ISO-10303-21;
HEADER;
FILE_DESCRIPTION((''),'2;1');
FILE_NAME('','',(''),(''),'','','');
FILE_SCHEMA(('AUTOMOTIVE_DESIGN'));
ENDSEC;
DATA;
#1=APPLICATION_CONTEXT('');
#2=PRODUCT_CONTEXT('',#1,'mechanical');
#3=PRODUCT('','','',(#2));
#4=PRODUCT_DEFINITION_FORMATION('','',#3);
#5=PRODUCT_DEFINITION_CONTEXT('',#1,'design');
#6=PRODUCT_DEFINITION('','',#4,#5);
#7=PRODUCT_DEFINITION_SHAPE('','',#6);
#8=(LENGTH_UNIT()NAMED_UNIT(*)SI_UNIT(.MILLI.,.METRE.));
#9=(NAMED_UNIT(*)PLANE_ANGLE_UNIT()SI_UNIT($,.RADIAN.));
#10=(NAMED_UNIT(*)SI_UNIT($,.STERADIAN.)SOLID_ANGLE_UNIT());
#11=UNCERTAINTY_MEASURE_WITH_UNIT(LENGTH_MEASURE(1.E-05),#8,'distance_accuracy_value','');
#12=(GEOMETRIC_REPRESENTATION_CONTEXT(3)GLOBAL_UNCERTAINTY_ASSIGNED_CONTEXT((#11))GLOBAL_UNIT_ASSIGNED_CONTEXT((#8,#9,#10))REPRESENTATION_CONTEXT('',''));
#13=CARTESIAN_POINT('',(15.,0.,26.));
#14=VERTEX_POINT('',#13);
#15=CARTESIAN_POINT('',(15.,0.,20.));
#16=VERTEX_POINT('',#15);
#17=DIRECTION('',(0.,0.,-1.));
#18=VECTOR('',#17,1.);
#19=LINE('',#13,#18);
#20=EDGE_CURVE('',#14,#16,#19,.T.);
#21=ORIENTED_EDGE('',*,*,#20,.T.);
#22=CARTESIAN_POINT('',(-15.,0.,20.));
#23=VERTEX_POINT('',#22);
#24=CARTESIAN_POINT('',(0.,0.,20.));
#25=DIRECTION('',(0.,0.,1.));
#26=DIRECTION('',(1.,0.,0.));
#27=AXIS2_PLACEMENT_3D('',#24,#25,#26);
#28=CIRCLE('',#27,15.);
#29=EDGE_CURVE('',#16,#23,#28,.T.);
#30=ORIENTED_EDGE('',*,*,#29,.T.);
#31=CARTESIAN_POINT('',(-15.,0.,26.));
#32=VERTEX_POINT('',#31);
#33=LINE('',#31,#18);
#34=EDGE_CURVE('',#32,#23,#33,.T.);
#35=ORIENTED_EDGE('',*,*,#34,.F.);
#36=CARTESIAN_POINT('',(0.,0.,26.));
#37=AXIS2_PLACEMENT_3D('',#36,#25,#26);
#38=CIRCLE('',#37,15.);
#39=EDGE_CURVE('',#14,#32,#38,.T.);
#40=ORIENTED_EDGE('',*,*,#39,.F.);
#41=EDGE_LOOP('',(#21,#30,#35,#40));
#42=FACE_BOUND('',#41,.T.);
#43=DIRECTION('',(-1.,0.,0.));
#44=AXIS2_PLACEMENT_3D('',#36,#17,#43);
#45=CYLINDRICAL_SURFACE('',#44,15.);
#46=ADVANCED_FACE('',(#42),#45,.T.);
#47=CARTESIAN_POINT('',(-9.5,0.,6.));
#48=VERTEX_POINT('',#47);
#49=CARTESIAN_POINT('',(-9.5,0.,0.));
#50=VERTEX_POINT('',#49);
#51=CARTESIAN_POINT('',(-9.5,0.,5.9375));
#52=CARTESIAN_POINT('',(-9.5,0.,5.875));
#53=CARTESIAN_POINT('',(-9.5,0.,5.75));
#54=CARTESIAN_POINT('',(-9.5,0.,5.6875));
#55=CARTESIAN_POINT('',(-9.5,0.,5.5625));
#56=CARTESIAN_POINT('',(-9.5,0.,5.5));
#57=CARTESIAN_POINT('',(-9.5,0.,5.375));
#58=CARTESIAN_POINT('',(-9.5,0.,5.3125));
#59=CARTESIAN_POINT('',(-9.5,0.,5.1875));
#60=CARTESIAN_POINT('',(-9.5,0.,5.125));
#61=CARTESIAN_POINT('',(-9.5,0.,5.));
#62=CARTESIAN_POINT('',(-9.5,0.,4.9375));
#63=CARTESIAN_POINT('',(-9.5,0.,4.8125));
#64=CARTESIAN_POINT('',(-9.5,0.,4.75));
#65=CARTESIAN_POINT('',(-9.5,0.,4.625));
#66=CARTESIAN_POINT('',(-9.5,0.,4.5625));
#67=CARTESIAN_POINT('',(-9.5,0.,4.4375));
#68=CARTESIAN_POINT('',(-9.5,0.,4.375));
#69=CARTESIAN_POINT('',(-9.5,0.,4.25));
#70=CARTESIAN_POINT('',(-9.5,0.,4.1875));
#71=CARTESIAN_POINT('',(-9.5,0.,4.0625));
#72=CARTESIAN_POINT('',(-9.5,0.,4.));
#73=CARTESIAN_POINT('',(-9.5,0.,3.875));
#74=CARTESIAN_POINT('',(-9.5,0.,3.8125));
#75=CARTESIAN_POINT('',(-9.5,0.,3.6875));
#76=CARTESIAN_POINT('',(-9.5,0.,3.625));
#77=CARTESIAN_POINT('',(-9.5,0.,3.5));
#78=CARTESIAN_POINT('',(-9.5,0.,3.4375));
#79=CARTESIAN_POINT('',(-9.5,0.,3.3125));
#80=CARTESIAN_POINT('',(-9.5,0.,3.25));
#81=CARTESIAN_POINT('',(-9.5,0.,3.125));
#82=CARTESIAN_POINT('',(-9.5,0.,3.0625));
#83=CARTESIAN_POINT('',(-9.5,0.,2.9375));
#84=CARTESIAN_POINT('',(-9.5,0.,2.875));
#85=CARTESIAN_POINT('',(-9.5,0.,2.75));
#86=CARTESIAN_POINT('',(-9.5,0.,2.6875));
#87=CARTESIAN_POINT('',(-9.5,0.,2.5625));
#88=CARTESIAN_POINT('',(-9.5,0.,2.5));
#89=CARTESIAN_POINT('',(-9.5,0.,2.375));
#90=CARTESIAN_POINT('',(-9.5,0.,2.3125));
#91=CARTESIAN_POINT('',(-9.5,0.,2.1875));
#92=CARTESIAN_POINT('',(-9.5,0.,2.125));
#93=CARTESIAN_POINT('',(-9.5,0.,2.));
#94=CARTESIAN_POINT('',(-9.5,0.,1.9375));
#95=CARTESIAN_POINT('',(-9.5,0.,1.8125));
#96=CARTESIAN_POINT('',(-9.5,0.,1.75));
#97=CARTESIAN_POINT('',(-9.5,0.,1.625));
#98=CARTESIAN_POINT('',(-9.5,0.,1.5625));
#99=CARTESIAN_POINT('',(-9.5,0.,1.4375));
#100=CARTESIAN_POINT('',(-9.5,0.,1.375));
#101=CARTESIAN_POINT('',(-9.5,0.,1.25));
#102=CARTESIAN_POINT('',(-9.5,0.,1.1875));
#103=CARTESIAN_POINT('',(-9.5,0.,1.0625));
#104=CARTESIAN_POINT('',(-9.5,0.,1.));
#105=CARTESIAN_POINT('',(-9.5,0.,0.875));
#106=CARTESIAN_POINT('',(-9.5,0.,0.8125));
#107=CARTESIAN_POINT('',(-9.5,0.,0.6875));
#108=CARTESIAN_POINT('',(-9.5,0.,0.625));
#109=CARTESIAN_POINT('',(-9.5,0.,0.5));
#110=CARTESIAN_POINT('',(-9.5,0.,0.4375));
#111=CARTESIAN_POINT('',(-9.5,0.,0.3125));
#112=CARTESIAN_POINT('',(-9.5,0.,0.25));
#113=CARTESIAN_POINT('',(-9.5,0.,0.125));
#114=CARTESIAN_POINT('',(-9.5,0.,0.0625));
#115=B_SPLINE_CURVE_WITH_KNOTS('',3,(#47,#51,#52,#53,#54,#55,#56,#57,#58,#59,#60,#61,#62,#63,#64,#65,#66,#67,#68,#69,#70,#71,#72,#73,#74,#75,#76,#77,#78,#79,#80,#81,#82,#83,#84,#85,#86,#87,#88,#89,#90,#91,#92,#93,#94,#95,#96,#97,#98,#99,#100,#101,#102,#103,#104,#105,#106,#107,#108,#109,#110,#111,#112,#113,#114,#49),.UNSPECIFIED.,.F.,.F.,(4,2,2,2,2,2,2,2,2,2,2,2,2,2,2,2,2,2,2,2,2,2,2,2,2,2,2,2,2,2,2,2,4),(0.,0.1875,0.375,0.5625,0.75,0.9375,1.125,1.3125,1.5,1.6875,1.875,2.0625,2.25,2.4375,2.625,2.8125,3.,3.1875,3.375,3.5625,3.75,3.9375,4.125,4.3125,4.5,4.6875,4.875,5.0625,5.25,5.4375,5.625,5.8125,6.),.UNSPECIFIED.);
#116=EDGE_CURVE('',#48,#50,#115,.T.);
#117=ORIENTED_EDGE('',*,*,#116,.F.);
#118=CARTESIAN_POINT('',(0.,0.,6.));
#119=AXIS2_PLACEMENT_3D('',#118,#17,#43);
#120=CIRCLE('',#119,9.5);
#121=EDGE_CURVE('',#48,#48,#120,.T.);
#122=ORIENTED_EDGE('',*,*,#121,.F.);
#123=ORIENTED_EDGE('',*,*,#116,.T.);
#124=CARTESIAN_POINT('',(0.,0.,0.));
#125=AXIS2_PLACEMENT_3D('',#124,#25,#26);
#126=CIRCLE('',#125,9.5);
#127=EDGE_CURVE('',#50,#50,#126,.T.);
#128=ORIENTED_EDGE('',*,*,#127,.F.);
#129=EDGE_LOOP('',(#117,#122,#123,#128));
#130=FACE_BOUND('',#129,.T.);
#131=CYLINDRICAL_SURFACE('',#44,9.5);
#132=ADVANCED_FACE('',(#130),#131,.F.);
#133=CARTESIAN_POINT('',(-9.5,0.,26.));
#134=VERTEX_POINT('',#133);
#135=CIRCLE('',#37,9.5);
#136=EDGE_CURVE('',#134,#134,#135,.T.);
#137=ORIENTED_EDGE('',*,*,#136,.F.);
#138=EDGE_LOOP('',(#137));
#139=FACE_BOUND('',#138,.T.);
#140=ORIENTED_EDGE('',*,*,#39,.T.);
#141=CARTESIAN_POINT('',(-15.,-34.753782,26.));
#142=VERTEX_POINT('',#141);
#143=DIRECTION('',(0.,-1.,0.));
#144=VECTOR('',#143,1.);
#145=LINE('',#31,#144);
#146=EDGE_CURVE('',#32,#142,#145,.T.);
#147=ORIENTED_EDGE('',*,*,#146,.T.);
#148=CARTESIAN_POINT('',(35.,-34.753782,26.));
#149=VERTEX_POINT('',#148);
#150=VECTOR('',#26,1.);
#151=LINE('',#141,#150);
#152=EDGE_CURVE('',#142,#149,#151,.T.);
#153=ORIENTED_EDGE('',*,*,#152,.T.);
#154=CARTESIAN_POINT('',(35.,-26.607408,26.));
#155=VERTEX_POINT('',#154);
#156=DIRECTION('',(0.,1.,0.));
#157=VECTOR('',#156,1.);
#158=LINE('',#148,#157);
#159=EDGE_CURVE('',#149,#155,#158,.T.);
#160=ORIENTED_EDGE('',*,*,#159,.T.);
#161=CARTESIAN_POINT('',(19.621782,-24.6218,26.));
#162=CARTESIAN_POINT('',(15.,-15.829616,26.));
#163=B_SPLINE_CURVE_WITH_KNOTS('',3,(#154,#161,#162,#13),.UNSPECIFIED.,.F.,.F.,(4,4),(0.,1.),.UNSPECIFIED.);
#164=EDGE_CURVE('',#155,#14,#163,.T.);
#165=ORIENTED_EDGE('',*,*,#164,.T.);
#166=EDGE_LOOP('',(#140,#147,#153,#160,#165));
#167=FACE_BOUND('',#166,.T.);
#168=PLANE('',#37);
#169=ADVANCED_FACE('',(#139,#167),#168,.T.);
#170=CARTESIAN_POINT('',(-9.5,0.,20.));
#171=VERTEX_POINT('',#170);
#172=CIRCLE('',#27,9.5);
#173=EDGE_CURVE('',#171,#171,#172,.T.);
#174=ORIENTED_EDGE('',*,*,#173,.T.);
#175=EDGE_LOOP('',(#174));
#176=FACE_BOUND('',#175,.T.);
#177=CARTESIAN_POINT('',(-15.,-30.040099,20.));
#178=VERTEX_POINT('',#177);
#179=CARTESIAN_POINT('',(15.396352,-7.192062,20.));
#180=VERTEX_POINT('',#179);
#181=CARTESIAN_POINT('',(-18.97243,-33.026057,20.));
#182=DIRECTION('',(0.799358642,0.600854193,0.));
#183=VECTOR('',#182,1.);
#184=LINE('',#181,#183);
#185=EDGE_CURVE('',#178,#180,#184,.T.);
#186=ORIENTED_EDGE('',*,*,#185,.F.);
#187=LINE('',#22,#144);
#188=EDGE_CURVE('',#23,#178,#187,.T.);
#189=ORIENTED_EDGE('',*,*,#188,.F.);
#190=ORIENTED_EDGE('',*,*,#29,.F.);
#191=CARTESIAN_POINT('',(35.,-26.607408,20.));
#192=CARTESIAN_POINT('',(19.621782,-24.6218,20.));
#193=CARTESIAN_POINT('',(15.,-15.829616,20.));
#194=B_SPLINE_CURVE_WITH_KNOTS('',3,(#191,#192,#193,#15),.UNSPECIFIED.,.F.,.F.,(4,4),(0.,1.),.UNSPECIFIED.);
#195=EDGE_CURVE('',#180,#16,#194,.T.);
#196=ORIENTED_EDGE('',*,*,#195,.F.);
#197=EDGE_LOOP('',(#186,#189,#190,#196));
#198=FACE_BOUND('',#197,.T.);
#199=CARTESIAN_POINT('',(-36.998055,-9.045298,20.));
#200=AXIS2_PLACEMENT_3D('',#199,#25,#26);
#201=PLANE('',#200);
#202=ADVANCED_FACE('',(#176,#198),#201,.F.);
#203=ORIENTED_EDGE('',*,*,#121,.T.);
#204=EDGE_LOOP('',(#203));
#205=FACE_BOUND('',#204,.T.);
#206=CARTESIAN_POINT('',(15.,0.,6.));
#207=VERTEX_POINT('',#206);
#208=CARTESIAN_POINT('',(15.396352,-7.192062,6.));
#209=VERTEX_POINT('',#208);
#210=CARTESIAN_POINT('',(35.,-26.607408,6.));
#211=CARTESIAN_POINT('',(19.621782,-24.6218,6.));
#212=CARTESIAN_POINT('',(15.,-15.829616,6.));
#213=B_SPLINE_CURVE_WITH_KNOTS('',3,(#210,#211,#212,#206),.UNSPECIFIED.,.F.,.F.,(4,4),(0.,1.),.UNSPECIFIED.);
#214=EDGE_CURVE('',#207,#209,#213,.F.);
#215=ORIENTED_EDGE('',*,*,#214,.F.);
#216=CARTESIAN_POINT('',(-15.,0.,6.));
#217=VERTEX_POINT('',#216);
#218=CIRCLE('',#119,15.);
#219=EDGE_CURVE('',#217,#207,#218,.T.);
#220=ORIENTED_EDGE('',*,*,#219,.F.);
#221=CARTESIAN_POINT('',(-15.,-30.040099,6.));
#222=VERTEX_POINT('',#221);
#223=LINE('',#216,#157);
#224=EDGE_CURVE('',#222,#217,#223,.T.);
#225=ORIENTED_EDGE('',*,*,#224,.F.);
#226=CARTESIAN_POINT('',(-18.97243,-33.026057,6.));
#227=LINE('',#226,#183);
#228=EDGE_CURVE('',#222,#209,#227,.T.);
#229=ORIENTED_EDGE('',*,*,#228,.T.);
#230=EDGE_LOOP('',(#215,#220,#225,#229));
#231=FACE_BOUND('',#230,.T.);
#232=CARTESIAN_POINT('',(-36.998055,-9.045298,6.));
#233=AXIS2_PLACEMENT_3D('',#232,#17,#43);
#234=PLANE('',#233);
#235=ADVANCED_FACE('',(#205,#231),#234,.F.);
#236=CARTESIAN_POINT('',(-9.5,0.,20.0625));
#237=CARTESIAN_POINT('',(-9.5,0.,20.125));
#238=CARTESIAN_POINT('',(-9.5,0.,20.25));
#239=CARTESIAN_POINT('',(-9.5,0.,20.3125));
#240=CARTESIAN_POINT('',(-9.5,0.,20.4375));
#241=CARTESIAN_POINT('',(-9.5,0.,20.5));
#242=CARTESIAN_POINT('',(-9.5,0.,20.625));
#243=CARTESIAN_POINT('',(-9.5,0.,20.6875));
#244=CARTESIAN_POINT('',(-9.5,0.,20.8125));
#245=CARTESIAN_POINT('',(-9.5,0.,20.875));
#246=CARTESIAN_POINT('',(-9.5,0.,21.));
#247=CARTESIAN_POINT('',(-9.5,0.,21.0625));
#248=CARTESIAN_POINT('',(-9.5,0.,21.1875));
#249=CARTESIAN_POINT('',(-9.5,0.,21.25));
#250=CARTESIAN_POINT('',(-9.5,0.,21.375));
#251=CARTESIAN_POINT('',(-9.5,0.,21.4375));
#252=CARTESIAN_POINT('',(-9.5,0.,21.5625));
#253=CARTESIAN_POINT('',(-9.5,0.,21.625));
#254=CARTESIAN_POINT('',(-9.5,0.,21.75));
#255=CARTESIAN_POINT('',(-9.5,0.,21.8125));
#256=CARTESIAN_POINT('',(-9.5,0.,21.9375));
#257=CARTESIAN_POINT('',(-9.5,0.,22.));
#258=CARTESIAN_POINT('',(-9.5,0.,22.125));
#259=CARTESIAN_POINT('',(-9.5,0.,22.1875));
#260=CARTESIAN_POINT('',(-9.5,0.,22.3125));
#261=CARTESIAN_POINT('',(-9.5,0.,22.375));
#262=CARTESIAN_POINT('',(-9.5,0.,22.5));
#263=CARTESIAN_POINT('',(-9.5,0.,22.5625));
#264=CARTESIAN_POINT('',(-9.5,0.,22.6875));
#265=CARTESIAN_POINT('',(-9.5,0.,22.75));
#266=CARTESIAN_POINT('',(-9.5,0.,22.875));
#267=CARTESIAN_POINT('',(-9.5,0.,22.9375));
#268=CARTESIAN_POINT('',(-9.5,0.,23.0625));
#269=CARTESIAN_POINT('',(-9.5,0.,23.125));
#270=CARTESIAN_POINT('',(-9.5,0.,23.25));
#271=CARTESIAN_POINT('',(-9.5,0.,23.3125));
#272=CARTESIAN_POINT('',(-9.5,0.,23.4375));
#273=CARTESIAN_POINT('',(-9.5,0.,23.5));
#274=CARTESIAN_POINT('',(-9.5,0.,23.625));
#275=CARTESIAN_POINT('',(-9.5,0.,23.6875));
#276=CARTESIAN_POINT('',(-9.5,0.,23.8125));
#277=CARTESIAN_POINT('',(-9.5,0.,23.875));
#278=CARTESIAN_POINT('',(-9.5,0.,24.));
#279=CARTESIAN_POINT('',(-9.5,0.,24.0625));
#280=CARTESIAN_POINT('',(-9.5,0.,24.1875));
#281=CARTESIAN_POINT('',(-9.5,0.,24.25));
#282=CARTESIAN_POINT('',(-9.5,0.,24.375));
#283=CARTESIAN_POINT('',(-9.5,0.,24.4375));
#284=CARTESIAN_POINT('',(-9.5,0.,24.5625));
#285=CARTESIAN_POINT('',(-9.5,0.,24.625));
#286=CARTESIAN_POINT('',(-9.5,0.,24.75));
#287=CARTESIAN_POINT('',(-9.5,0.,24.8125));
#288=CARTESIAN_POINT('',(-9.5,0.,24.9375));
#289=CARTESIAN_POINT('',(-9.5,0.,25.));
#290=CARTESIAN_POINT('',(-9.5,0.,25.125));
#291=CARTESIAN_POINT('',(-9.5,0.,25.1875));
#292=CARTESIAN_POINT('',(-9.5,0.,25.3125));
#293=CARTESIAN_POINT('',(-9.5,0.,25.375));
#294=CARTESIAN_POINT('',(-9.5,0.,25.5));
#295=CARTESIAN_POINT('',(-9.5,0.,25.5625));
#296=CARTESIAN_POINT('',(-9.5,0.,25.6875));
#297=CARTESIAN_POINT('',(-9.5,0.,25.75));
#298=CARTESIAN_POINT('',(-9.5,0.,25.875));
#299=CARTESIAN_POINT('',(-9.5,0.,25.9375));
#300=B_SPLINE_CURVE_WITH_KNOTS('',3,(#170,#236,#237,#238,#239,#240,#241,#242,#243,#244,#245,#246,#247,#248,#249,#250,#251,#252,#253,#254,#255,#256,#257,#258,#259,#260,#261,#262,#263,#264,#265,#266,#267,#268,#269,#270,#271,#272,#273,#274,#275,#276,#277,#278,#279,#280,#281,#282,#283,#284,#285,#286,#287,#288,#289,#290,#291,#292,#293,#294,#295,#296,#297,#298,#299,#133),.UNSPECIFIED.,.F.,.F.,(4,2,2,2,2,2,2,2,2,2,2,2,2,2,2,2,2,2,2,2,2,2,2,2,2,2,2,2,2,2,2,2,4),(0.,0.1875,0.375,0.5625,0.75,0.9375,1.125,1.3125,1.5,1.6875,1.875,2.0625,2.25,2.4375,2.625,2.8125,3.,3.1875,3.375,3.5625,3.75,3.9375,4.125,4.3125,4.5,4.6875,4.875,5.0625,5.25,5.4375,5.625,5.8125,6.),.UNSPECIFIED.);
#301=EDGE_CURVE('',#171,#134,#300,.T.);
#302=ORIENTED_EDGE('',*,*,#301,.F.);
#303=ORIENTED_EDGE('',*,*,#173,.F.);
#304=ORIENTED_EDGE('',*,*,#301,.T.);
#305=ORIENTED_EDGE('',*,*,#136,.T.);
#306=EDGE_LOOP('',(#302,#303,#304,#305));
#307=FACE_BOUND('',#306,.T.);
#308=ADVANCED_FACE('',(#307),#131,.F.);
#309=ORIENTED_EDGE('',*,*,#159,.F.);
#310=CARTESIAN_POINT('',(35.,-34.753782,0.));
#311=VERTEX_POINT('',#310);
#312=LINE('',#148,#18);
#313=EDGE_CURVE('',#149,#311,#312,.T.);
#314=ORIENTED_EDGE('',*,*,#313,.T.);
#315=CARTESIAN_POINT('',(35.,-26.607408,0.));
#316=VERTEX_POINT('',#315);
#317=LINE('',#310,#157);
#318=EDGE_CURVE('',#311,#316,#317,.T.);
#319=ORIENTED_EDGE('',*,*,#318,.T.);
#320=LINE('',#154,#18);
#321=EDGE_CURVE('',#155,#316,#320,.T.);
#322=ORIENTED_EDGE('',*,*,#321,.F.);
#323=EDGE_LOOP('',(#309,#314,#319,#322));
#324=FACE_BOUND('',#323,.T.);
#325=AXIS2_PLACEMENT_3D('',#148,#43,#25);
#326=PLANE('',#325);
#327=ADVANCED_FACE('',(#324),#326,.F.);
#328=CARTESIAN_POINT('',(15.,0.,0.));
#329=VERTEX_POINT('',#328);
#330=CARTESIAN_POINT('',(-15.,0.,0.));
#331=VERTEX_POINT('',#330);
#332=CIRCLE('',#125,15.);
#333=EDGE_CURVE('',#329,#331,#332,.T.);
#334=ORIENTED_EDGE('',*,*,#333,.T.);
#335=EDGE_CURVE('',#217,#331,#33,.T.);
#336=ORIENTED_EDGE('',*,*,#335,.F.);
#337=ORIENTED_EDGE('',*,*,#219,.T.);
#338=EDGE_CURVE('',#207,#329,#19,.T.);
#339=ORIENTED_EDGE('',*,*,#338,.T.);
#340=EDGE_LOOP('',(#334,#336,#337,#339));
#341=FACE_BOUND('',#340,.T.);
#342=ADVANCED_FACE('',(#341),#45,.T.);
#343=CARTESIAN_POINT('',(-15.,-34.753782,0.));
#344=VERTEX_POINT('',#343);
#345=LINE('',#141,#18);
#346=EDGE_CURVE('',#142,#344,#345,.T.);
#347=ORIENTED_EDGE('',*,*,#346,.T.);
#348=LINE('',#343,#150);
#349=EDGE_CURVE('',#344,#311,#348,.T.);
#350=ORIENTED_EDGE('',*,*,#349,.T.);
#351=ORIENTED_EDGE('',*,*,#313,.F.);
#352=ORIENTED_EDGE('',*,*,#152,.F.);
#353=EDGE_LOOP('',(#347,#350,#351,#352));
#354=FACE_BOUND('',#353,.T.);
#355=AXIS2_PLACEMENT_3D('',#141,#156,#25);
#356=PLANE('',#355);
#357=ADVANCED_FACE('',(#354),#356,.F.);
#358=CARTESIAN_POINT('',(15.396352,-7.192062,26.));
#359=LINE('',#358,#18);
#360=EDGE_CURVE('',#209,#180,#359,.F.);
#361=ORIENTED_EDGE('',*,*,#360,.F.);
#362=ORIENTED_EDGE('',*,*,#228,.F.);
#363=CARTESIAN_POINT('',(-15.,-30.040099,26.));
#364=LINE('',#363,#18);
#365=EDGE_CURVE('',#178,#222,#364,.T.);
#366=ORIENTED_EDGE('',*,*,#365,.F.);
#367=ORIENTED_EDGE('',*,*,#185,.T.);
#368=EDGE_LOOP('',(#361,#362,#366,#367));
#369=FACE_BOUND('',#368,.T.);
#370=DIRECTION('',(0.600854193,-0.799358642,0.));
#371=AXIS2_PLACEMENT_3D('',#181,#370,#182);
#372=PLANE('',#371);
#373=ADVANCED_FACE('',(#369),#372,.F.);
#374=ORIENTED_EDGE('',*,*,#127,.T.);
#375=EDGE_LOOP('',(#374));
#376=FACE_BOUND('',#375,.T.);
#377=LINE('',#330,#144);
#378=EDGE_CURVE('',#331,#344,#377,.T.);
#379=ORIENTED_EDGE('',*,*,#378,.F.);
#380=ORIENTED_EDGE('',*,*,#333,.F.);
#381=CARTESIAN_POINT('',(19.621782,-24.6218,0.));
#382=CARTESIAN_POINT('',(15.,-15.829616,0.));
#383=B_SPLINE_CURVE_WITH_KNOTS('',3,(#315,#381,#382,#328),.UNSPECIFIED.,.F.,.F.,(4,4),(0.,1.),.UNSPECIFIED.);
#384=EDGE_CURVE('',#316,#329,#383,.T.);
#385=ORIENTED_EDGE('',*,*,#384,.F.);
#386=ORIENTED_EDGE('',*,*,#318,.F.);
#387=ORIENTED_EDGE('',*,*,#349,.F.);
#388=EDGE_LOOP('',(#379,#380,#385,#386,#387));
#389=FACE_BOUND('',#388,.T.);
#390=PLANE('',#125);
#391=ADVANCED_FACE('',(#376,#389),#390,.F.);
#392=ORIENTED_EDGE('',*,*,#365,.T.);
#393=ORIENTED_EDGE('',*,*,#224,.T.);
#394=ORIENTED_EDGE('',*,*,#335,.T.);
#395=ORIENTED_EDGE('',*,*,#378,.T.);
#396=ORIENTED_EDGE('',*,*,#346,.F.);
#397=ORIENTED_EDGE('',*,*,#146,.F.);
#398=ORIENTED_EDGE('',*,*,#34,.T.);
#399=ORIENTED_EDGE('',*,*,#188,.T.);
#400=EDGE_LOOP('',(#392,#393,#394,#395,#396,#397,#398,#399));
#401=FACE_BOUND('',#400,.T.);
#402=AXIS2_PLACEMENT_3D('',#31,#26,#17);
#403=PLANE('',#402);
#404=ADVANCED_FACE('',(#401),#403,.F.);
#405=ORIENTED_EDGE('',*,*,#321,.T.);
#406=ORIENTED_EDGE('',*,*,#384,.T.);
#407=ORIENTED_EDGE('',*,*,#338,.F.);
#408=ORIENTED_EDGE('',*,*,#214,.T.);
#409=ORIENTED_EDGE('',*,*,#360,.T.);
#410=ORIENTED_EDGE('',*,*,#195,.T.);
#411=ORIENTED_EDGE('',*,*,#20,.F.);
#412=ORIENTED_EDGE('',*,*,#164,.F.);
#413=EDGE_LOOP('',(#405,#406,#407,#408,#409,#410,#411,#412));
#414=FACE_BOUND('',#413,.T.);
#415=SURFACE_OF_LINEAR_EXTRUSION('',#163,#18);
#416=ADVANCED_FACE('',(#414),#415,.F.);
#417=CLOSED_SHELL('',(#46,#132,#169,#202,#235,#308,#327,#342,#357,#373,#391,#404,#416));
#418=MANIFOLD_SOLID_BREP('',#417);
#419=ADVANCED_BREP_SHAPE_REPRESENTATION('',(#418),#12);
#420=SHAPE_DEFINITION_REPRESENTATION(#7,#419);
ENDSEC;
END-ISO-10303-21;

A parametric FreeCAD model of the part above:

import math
import FreeCAD as App
import Part
import Sketcher
from FreeCAD import Vector


def add_polygon(sketch, points):
    """Adds a closed chain of lines whose ends are joined by coincident constraints."""
    first, n = sketch.GeometryCount, len(points)
    for a, b in zip(points, points[1:] + points[:1]):
        sketch.addGeometry(Part.LineSegment(App.Vector(*a, 0), App.Vector(*b, 0)), False)
    for i in range(n):
        sketch.addConstraint(Sketcher.Constraint("Coincident", first + i, 2, first + (i + 1) % n, 1))

doc = App.newDocument("Part")
params = doc.addObject("Spreadsheet::Sheet", "Params")
for row, (alias, value) in enumerate([
    ("sketch1_diameter", "19 mm"),
    ("pad1_length", "26 mm"),
    ("sketch2_width", "14 mm"),
    ("sketch2_height", "30 mm"),
    ("pocket1_length", "57 mm"),
], start=1):
    params.set(f"A{row}", alias)
    params.set(f"B{row}", "=" + value)
    params.setAlias(f"B{row}", alias)

body = doc.addObject("PartDesign::Body", "Body")

sketch1 = body.newObject("Sketcher::SketchObject", "Sketch")
sketch1.AttachmentSupport = (doc.getObject("XY_Plane"), [""])
sketch1.MapMode = "FlatFace"
sketch1.addGeometry([
    Part.LineSegment(Vector(-15, 0, 0), Vector(-15, -34.753782, 0)),
    Part.LineSegment(Vector(-15, -34.753782, 0), Vector(35, -34.753782, 0)),
    Part.LineSegment(Vector(35, -34.753782, 0), Vector(35, -26.607408, 0)),
    Part.BSplineCurve([Vector(35, -26.607408, 0), Vector(19.621782, -24.6218, 0), Vector(15, -15.829616, 0), Vector(15, 0, 0)], [4, 4], [0, 1], False, 3, [1, 1, 1, 1], False),
    Part.ArcOfCircle(Part.Circle(Vector(0, 0, 0), Vector(0, 0, 1), 15), math.radians(0), math.radians(180)),
    Part.Circle(Vector(0, 0, 0), Vector(0, 0, 1), 9.5),
], False)
sketch1.addConstraint([
    Sketcher.Constraint("Block", 3),
    Sketcher.Constraint("Coincident", 0, 2, 1, 1),
    Sketcher.Constraint("Coincident", 1, 2, 2, 1),
    Sketcher.Constraint("Coincident", 2, 2, 3, 1),
    Sketcher.Constraint("Coincident", 3, 2, 4, 1),
    Sketcher.Constraint("Tangent", 4, 2, 0, 1),
    Sketcher.Constraint("Vertical", 0),
    Sketcher.Constraint("Horizontal", 1),
    Sketcher.Constraint("Vertical", 2),
    Sketcher.Constraint("Coincident", 4, 3, -1, 1),
    Sketcher.Constraint("Coincident", 5, 3, -1, 1),
    Sketcher.Constraint("Diameter", 5, 19.0),
    Sketcher.Constraint("DistanceY", 0, 2, 0, 1, 34.753782),
])
sketch1.setExpression("Constraints[11]", "Params.sketch1_diameter")
pad1 = body.newObject("PartDesign::Pad", "Pad")
pad1.Profile = sketch1
pad1.setExpression("Length", "Params.pad1_length")

sketch2 = body.newObject("Sketcher::SketchObject", "Sketch001")
sketch2.Placement = App.Placement(Vector(17.5782, 13.213012, 0), App.Rotation(Vector(0, 0, -1), Vector(-0.600854193, 0.799358642, 0), Vector(0.799358642, 0.600854193, 0), "ZXY"))
add_polygon(sketch2, [(-20, 15), (-20, -15), (-6, -15), (-6, 15)])
sketch2.addConstraint([
    Sketcher.Constraint("Vertical", 0),
    Sketcher.Constraint("Horizontal", 1),
    Sketcher.Constraint("Vertical", 2),
    Sketcher.Constraint("Horizontal", 3),
    Sketcher.Constraint("DistanceX", 1, 1, 1, 2, 14.0),
    Sketcher.Constraint("DistanceY", 0, 2, 0, 1, 30.0),
    Sketcher.Constraint("DistanceX", 0, 2, -1, 1, 20.0),
    Sketcher.Constraint("DistanceY", 0, 2, -1, 1, 15.0),
])
sketch2.setExpression("Constraints[8]", "Params.sketch2_width")
sketch2.setExpression("Constraints[9]", "Params.sketch2_height")
pocket1 = body.newObject("PartDesign::Pocket", "Pocket")
pocket1.Profile = sketch2
pocket1.setExpression("Length", "Params.pocket1_length")

doc.recompute()
